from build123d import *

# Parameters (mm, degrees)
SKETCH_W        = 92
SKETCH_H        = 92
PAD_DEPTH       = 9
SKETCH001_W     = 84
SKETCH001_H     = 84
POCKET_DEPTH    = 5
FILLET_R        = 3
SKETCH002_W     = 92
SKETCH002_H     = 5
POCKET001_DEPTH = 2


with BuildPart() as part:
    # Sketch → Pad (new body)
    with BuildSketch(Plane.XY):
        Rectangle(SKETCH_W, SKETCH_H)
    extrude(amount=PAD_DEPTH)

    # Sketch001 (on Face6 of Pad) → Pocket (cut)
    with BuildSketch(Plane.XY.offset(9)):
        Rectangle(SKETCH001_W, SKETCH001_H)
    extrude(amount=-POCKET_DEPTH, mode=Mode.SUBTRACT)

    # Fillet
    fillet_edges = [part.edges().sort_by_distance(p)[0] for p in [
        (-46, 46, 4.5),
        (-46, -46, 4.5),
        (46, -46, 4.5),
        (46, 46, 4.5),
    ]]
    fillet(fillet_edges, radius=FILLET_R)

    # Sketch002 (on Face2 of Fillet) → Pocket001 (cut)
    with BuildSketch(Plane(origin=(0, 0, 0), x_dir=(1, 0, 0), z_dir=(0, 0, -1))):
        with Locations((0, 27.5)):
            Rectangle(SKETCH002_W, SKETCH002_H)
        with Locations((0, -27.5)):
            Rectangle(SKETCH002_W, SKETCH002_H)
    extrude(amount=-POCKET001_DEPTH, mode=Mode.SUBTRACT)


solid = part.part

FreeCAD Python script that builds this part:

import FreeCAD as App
import Part
import Sketcher

V = App.Vector


def edges_at(feature, points):
    """Names of the edges that pass closest to the given points."""
    edges = feature.Shape.Edges
    near = lambda p: min(range(len(edges)), key=lambda i: edges[i].distToShape(Part.Vertex(*p))[0])
    return sorted({f"Edge{near(p) + 1}" for p in points})

doc = App.newDocument("Part")
body = doc.addObject("PartDesign::Body", "Body")

sketch1 = body.newObject("Sketcher::SketchObject", "Sketch")
sketch1.AttachmentSupport = (doc.getObject("XY_Plane"), [""])
sketch1.MapMode = "FlatFace"
sketch1.addGeometry(Part.LineSegment(V(-46, 46, 0), V(-46, -46, 0)), False)
sketch1.addGeometry(Part.LineSegment(V(-46, -46, 0), V(46, -46, 0)), False)
sketch1.addGeometry(Part.LineSegment(V(46, -46, 0), V(46, 46, 0)), False)
sketch1.addGeometry(Part.LineSegment(V(46, 46, 0), V(-46, 46, 0)), False)
sketch1.addConstraint(Sketcher.Constraint("Coincident", 0, 2, 1, 1))
sketch1.addConstraint(Sketcher.Constraint("Coincident", 1, 2, 2, 1))
sketch1.addConstraint(Sketcher.Constraint("Coincident", 2, 2, 3, 1))
sketch1.addConstraint(Sketcher.Constraint("Coincident", 3, 2, 0, 1))
sketch1.addConstraint(Sketcher.Constraint("Vertical", 0))
sketch1.addConstraint(Sketcher.Constraint("Horizontal", 1))
sketch1.addConstraint(Sketcher.Constraint("Vertical", 2))
sketch1.addConstraint(Sketcher.Constraint("Horizontal", 3))
sketch1.addConstraint(Sketcher.Constraint("Symmetric", 0, 2, 2, 2, -1, 1))
sketch1.addConstraint(Sketcher.Constraint("Equal", 3, 0))
sketch1.addConstraint(Sketcher.Constraint("DistanceX", 1, 1, 1, 2, 92.0))
pad1 = body.newObject("PartDesign::Pad", "Pad")
pad1.Profile = sketch1
pad1.Length = 9

sketch2 = body.newObject("Sketcher::SketchObject", "Sketch001")
sketch2.AttachmentSupport = (doc.getObject("XY_Plane"), [""])
sketch2.MapMode = "FlatFace"
sketch2.AttachmentOffset = App.Placement(V(0, 0, 9), App.Rotation())
sketch2.addGeometry(Part.LineSegment(V(-42, 42, 0), V(-42, -42, 0)), False)
sketch2.addGeometry(Part.LineSegment(V(-42, -42, 0), V(42, -42, 0)), False)
sketch2.addGeometry(Part.LineSegment(V(42, -42, 0), V(42, 42, 0)), False)
sketch2.addGeometry(Part.LineSegment(V(42, 42, 0), V(-42, 42, 0)), False)
sketch2.addConstraint(Sketcher.Constraint("Coincident", 0, 2, 1, 1))
sketch2.addConstraint(Sketcher.Constraint("Coincident", 1, 2, 2, 1))
sketch2.addConstraint(Sketcher.Constraint("Coincident", 2, 2, 3, 1))
sketch2.addConstraint(Sketcher.Constraint("Coincident", 3, 2, 0, 1))
sketch2.addConstraint(Sketcher.Constraint("Vertical", 0))
sketch2.addConstraint(Sketcher.Constraint("Horizontal", 1))
sketch2.addConstraint(Sketcher.Constraint("Vertical", 2))
sketch2.addConstraint(Sketcher.Constraint("Horizontal", 3))
sketch2.addConstraint(Sketcher.Constraint("Symmetric", 0, 2, 2, 2, -1, 1))
sketch2.addConstraint(Sketcher.Constraint("Equal", 3, 0))
sketch2.addConstraint(Sketcher.Constraint("DistanceX", 1, 1, 1, 2, 84.0))
pocket1 = body.newObject("PartDesign::Pocket", "Pocket")
pocket1.Profile = sketch2
pocket1.Length = 5
doc.recompute()

fillet = body.newObject("PartDesign::Fillet", "Fillet")
fillet.Base = (pocket1, edges_at(pocket1, [
    (-46, 46, 4.5),
    (-46, -46, 4.5),
    (46, -46, 4.5),
    (46, 46, 4.5),
]))
fillet.Radius = 3

sketch3 = body.newObject("Sketcher::SketchObject", "Sketch002")
sketch3.AttachmentSupport = (doc.getObject("XY_Plane"), [""])
sketch3.MapMode = "FlatFace"
sketch3.addGeometry(Part.LineSegment(V(-46, -30, 0), V(-46, -25, 0)), False)
sketch3.addGeometry(Part.LineSegment(V(-46, -25, 0), V(46, -25, 0)), False)
sketch3.addGeometry(Part.LineSegment(V(46, -25, 0), V(46, -30, 0)), False)
sketch3.addGeometry(Part.LineSegment(V(46, -30, 0), V(-46, -30, 0)), False)
sketch3.addGeometry(Part.LineSegment(V(-46, 25, 0), V(-46, 30, 0)), False)
sketch3.addGeometry(Part.LineSegment(V(-46, 30, 0), V(46, 30, 0)), False)
sketch3.addGeometry(Part.LineSegment(V(46, 30, 0), V(46, 25, 0)), False)
sketch3.addGeometry(Part.LineSegment(V(46, 25, 0), V(-46, 25, 0)), False)
sketch3.addConstraint(Sketcher.Constraint("Coincident", 0, 2, 1, 1))
sketch3.addConstraint(Sketcher.Constraint("Coincident", 1, 2, 2, 1))
sketch3.addConstraint(Sketcher.Constraint("Coincident", 2, 2, 3, 1))
sketch3.addConstraint(Sketcher.Constraint("Coincident", 3, 2, 0, 1))
sketch3.addConstraint(Sketcher.Constraint("Coincident", 4, 2, 5, 1))
sketch3.addConstraint(Sketcher.Constraint("Coincident", 5, 2, 6, 1))
sketch3.addConstraint(Sketcher.Constraint("Coincident", 6, 2, 7, 1))
sketch3.addConstraint(Sketcher.Constraint("Coincident", 7, 2, 4, 1))
sketch3.addConstraint(Sketcher.Constraint("Vertical", 0))
sketch3.addConstraint(Sketcher.Constraint("Horizontal", 1))
sketch3.addConstraint(Sketcher.Constraint("Vertical", 2))
sketch3.addConstraint(Sketcher.Constraint("Horizontal", 3))
sketch3.addConstraint(Sketcher.Constraint("Vertical", 4))
sketch3.addConstraint(Sketcher.Constraint("Horizontal", 5))
sketch3.addConstraint(Sketcher.Constraint("Vertical", 6))
sketch3.addConstraint(Sketcher.Constraint("Horizontal", 7))
sketch3.addConstraint(Sketcher.Constraint("Symmetric", 2, 2, 4, 2, -1, 1))
sketch3.addConstraint(Sketcher.Constraint("Symmetric", 0, 2, 6, 2, -1, 1))
sketch3.addConstraint(Sketcher.Constraint("Vertical", 3, 2, 4, 2))
sketch3.addConstraint(Sketcher.Constraint("DistanceX", 1, 1, 1, 2, 92.0))
sketch3.addConstraint(Sketcher.Constraint("DistanceY", 0, 1, 0, 2, 5.0))
sketch3.addConstraint(Sketcher.Constraint("DistanceY", 0, 2, -1, 1, 25.0))
pocket2 = body.newObject("PartDesign::Pocket", "Pocket001")
pocket2.Profile = sketch3
pocket2.Length = 2
pocket2.Reversed = True

doc.recompute()
